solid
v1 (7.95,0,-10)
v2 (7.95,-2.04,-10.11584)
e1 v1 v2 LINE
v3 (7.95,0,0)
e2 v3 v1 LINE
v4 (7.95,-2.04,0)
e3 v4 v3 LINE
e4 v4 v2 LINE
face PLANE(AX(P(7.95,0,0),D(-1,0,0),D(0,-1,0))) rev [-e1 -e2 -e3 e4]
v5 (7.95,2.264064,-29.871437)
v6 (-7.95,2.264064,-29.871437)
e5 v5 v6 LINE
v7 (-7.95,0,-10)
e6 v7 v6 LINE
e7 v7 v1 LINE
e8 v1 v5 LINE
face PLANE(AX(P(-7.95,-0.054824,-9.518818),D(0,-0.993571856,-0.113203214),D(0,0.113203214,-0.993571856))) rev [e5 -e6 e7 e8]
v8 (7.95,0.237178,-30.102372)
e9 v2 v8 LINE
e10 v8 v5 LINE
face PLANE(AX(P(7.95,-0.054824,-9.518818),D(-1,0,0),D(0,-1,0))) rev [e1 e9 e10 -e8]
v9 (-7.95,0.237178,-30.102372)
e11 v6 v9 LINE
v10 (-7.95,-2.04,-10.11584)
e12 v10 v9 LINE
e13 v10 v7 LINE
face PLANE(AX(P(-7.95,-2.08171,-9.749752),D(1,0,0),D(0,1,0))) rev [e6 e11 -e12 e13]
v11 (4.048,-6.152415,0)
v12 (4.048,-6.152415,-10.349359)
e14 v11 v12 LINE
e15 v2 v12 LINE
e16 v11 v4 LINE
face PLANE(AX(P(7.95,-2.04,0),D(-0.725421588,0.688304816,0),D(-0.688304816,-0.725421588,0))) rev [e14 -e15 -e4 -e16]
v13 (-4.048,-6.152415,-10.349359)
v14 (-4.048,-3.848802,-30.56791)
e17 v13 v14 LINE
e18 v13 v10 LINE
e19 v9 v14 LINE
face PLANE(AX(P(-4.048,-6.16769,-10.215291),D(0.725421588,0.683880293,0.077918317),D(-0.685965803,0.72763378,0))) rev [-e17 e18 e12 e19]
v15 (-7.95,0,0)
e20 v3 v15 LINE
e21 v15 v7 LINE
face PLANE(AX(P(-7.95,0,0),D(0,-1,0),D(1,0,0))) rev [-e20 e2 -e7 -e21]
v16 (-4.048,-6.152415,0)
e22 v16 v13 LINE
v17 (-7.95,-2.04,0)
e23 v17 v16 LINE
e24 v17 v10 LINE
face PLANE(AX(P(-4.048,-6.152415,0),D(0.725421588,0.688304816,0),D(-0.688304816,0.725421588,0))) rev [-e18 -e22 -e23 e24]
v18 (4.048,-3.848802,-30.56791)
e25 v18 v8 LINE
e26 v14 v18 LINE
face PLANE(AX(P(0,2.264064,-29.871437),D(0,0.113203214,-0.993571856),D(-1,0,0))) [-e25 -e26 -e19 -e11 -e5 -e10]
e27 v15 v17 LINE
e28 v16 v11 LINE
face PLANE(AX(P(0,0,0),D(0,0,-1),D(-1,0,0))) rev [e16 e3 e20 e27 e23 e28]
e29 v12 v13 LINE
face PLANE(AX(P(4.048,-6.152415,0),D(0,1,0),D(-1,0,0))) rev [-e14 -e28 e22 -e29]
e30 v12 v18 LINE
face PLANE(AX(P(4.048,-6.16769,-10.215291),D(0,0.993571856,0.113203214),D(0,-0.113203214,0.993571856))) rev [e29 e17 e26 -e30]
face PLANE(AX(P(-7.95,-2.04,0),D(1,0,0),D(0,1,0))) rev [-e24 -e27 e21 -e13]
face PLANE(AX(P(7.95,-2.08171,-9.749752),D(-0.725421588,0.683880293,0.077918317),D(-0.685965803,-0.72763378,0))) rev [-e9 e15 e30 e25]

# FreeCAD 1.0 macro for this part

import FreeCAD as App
import Part
import Sketcher

V = App.Vector
Q = App.Units.Quantity


def add_polygon(sketch, points):
    """Adds a closed chain of lines whose ends are joined by coincident constraints."""
    first, n = sketch.GeometryCount, len(points)
    for a, b in zip(points, points[1:] + points[:1]):
        sketch.addGeometry(Part.LineSegment(App.Vector(*a, 0), App.Vector(*b, 0)), False)
    for i in range(n):
        sketch.addConstraint(Sketcher.Constraint("Coincident", first + i, 2, first + (i + 1) % n, 1))

doc = App.newDocument("Part")
body = doc.addObject("PartDesign::Body", "Body")

# Sketch on XY plane
sketch1 = doc.addObject("Sketcher::SketchObject", "Sketch")
body.addObject(sketch1)
sketch1.AttachmentSupport = (doc.XY_Plane, [""])
sketch1.MapMode = "FlatFace"
add_polygon(sketch1, [(8, -2), (8, 0), (-8, 0), (-8, -2), (-4, -6.2), (4, -6.2)])  # lines 0-5
sketch1.addConstraint([
    Sketcher.Constraint("Vertical", 0),
    Sketcher.Constraint("Horizontal", 1),
    Sketcher.Constraint("Vertical", 2),
    Sketcher.Constraint("Horizontal", 4),
    Sketcher.Constraint("Symmetric", 0, 2, 1, 2, -1, 1),
    Sketcher.Constraint("Horizontal", 2, 2, 5, 2),
    Sketcher.Constraint("Equal", 3, 5),
    Sketcher.Constraint("DistanceX", 1, 2, 1, 1, Q("15.9 mm")),
    Sketcher.Constraint("DistanceY", 0, 1, 0, 2, Q("2.04 mm")),
    Sketcher.Constraint("DistanceX", 4, 1, 4, 2, Q("8.096 mm")),
    Sketcher.Constraint("Distance", 3, Q("5.669 mm")),
])

# Sketch on YZ plane
sketch2 = doc.addObject("Sketcher::SketchObject", "Sketch001")
body.addObject(sketch2)
sketch2.AttachmentSupport = (doc.YZ_Plane, [""])
sketch2.MapMode = "FlatFace"
sketch2.addGeometry([
    Part.LineSegment(V(0, 0, 0), V(0, -10, 0)),
    Part.LineSegment(V(0, -10, 0), V(2, -30, 0)),
], False)
sketch2.addConstraint([
    Sketcher.Constraint("Coincident", 0, 2, 1, 1),
    Sketcher.Constraint("Vertical", 0),
    Sketcher.Constraint("Coincident", 0, 1, -1, 1),
    Sketcher.Constraint("DistanceY", 0, 2, 0, 1, Q("10 mm")),
    Sketcher.Constraint("Distance", 1, Q("20 mm")),
    Sketcher.Constraint("Angle", 1, Q("-83.5 deg")),
])
doc.recompute()

additivepipe = doc.addObject("PartDesign::AdditivePipe", "AdditivePipe")
body.addObject(additivepipe)
additivepipe.Profile = sketch1
additivepipe.Spine = (sketch2, ["Edge1", "Edge2"])
additivepipe.Transition = "Right corner"

doc.recompute()
